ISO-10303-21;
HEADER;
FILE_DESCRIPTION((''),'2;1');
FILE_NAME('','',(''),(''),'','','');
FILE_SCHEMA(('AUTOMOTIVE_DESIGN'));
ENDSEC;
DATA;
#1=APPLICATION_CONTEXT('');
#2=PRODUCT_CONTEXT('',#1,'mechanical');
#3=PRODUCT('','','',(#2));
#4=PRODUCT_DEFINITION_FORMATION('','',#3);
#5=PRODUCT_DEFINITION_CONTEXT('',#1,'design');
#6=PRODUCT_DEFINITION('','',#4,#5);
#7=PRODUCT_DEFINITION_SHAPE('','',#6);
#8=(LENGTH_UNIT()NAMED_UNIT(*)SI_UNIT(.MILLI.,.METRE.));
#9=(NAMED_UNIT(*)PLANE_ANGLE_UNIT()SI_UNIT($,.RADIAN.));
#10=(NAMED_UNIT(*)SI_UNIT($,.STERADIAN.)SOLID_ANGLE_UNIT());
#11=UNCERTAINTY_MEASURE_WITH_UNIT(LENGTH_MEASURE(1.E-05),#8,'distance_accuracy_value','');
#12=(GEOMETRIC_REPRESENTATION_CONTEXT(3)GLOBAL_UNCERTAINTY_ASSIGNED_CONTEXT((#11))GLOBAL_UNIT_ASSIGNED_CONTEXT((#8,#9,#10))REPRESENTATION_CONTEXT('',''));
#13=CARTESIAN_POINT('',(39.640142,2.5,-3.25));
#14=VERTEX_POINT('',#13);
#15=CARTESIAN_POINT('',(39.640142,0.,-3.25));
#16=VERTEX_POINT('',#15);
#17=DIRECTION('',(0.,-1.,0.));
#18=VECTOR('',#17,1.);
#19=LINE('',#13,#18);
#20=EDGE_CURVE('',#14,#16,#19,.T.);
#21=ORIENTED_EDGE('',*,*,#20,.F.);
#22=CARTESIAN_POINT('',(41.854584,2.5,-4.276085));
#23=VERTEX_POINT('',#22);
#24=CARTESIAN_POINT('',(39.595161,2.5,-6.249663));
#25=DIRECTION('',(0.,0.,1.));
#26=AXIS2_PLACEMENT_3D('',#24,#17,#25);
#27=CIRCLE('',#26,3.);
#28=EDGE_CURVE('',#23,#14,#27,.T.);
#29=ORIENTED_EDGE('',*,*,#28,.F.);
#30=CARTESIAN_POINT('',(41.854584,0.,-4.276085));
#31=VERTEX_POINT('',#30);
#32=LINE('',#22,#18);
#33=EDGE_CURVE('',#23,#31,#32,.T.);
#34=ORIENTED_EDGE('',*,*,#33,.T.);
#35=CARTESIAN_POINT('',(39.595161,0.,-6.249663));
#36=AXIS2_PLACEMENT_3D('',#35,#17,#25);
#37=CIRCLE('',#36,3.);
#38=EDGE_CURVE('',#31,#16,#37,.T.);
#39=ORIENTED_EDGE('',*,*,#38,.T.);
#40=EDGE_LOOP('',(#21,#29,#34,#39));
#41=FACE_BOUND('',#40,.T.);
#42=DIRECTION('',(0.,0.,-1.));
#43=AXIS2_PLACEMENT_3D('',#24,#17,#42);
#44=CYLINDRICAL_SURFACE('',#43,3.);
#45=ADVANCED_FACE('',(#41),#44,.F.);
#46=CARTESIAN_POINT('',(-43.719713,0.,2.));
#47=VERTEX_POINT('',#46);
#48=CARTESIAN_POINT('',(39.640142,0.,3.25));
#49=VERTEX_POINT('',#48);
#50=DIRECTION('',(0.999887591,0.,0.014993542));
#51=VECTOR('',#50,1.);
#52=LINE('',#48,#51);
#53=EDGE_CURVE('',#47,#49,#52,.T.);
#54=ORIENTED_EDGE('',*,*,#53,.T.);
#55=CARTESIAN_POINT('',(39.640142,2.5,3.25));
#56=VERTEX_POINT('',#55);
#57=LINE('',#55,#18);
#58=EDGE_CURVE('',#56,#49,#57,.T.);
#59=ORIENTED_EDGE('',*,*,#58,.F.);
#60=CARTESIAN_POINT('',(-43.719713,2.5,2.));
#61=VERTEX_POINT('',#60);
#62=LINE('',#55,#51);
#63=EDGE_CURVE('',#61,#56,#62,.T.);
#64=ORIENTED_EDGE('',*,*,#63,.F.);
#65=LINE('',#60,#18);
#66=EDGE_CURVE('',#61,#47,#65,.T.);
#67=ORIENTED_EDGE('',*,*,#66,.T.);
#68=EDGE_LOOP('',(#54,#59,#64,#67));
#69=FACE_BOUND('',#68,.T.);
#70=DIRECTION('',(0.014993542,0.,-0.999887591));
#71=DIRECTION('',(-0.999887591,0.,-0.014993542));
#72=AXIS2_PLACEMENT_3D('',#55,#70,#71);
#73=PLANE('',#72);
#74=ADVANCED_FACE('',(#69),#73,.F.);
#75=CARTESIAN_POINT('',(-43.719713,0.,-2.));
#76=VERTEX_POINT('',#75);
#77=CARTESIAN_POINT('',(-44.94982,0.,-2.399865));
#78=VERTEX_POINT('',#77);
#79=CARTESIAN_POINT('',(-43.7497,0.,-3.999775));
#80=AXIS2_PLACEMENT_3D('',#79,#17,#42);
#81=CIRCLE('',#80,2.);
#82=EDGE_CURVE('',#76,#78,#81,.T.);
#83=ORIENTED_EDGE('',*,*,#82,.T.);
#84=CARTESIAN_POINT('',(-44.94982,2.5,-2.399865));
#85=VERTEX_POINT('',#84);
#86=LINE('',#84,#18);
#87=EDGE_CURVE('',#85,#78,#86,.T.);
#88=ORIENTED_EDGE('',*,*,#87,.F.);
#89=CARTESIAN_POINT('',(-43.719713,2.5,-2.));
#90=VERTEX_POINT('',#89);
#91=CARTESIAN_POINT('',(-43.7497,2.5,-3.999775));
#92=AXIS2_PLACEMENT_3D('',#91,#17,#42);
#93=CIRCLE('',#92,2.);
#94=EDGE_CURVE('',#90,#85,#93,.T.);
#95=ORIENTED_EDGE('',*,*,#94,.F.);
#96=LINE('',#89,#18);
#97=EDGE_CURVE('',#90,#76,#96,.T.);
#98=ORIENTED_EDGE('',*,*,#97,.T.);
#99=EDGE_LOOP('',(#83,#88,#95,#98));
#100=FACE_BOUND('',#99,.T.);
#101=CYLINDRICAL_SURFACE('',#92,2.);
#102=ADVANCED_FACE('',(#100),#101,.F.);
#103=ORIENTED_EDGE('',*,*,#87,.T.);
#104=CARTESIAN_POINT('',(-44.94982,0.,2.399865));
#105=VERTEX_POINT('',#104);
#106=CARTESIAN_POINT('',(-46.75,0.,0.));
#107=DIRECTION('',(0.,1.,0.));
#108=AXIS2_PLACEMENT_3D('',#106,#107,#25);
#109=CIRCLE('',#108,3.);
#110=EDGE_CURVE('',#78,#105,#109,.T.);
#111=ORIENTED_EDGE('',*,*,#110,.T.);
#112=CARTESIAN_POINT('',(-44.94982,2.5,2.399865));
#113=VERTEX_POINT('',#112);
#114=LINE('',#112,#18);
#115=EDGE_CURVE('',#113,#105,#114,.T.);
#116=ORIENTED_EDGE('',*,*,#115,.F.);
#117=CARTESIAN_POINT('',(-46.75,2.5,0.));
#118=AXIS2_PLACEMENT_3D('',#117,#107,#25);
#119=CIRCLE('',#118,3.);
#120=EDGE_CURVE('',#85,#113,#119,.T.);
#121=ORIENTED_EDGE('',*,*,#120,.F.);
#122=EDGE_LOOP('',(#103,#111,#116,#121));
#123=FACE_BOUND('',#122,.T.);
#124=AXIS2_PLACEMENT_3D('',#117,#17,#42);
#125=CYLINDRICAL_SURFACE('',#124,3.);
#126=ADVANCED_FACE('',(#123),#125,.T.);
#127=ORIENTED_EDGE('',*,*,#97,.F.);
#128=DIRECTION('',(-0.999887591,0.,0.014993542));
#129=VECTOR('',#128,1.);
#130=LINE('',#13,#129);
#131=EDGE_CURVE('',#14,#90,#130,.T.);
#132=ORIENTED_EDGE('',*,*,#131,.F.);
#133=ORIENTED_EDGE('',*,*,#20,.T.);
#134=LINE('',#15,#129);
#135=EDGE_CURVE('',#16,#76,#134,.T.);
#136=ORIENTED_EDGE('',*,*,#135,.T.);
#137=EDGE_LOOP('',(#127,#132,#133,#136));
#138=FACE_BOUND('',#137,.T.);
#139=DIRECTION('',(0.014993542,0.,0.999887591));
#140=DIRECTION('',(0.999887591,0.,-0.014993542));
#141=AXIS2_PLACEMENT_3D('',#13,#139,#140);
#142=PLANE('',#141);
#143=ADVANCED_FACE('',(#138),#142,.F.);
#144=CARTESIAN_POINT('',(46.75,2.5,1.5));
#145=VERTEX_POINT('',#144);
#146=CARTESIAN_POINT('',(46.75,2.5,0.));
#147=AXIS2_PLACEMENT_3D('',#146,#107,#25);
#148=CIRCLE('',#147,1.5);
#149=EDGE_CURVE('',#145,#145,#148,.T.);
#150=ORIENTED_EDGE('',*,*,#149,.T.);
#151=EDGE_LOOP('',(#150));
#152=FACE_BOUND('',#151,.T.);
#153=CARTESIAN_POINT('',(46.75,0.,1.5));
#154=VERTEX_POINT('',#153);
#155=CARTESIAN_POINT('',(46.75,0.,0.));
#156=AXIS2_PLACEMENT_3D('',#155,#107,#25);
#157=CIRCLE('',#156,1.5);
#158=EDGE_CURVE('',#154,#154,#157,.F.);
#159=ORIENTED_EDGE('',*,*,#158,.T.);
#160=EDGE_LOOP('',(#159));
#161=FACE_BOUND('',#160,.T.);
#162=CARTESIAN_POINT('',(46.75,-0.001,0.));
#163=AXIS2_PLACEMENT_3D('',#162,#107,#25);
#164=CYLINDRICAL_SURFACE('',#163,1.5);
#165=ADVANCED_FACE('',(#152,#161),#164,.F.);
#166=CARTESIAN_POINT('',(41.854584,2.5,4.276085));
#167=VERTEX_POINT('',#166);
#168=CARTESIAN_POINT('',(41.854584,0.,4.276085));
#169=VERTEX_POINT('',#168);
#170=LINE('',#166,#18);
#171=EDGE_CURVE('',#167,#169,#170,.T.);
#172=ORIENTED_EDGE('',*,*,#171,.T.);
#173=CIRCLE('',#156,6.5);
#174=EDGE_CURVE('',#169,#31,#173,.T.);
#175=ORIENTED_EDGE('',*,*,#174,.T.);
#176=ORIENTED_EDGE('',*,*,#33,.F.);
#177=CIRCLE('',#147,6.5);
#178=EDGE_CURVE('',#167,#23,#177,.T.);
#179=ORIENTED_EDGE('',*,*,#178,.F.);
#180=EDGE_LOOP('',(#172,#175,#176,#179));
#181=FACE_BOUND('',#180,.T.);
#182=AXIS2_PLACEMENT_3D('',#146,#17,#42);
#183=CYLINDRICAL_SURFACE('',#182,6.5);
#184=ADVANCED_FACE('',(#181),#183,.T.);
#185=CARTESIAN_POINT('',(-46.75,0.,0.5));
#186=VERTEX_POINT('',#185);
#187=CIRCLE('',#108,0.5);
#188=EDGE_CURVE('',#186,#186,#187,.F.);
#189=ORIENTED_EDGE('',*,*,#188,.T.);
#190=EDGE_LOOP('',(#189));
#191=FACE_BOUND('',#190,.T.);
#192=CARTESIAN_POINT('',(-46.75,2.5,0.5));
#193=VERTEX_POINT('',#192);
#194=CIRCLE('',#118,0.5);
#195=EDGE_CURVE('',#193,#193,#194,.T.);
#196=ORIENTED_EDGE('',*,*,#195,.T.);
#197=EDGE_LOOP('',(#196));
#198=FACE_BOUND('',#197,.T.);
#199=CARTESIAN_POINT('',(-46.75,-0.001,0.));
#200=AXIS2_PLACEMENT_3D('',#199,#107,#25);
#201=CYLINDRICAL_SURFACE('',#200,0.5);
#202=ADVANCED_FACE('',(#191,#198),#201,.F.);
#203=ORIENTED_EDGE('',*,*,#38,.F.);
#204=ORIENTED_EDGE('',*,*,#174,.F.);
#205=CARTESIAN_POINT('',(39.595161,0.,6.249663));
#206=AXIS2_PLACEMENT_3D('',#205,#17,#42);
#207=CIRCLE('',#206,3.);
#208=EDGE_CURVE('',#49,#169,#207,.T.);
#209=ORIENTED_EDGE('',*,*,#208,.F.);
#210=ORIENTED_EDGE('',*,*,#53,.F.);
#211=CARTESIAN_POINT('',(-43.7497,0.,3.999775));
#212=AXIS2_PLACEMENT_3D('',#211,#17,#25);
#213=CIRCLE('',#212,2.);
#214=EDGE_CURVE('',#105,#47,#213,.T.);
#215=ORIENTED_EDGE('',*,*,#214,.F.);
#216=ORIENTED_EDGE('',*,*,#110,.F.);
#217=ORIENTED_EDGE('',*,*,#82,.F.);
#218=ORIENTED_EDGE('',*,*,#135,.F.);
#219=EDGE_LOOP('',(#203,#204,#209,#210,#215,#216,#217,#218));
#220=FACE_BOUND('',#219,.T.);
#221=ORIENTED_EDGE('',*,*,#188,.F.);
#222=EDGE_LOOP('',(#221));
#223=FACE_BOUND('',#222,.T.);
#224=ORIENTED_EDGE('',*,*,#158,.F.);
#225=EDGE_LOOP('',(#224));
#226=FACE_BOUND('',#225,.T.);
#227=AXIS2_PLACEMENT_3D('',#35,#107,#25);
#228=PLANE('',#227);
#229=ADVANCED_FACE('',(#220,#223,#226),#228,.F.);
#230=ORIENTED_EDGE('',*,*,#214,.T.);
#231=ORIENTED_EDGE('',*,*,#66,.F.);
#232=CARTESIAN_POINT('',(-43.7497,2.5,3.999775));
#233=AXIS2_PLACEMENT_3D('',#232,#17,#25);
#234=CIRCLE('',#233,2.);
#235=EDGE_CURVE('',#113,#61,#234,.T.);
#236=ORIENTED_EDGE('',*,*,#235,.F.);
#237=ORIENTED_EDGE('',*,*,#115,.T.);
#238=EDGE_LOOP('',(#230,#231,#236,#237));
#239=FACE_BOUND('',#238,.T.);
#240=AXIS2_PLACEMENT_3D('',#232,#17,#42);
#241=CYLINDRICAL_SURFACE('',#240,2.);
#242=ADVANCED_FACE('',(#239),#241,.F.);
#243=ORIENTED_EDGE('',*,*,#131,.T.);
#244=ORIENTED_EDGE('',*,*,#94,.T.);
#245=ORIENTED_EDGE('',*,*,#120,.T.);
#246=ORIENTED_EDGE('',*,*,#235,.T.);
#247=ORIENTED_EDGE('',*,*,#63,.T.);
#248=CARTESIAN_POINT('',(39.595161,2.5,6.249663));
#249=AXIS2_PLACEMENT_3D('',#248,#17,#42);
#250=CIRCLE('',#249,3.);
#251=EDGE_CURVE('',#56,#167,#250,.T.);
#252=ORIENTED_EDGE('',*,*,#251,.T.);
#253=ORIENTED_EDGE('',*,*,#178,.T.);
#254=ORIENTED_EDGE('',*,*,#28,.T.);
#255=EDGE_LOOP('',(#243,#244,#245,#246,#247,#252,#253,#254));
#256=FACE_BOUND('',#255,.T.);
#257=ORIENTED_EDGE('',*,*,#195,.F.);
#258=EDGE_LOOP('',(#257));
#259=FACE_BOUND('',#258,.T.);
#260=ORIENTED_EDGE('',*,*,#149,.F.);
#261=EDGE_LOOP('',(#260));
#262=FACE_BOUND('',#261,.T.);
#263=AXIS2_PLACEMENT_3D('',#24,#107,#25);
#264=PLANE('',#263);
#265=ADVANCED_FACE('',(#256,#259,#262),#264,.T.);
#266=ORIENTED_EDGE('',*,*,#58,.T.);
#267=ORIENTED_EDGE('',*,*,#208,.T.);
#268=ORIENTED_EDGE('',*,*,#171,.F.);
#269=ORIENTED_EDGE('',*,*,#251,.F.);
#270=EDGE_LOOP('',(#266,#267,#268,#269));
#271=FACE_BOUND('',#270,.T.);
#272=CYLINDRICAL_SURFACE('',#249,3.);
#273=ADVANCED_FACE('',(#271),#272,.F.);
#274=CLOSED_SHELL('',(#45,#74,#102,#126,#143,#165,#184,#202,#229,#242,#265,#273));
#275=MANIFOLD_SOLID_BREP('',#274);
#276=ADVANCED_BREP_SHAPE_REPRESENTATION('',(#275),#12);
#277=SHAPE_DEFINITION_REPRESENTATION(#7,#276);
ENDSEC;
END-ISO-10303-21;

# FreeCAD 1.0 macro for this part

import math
import FreeCAD as App
import Part
import Sketcher

V = App.Vector

doc = App.newDocument("Part")
body = doc.addObject("PartDesign::Body", "Body")

# Sketch on XZ plane
sketch1 = doc.addObject("Sketcher::SketchObject", "Sketch")
body.addObject(sketch1)
sketch1.AttachmentSupport = (doc.XZ_Plane, [""])
sketch1.MapMode = "FlatFace"
sketch1.addGeometry(Part.LineSegment(V(39.6, -3.2, 0), V(-43.7, -2, 0)), False)
sketch1.addGeometry(Part.ArcOfCircle(Part.Circle(V(-43.7, -4, 0), V(0, 0, 1), 2), math.radians(89), math.radians(127)), False)
sketch1.addGeometry(Part.ArcOfCircle(Part.Circle(V(-46.8, 0, 0), V(0, 0, 1), 3), math.radians(53), math.radians(307)), False)
sketch1.addGeometry(Part.ArcOfCircle(Part.Circle(V(-43.7, 4, 0), V(0, 0, 1), 2), math.radians(-127), math.radians(-89)), False)
sketch1.addGeometry(Part.LineSegment(V(-43.7, 2, 0), V(39.6, 3.2, 0)), False)
sketch1.addGeometry(Part.ArcOfCircle(Part.Circle(V(39.6, 6.2, 0), V(0, 0, 1), 3), math.radians(-89), math.radians(-41)), False)
sketch1.addGeometry(Part.ArcOfCircle(Part.Circle(V(46.8, 0, 0), V(0, 0, 1), 6.5), math.radians(-139), math.radians(139)), False)
sketch1.addGeometry(Part.ArcOfCircle(Part.Circle(V(39.6, -6.2, 0), V(0, 0, 1), 3), math.radians(41), math.radians(89)), False)
sketch1.addConstraint(Sketcher.Constraint("Tangent", 0, 2, 1, 1))
sketch1.addConstraint(Sketcher.Constraint("Tangent", 1, 2, 2, 2))
sketch1.addConstraint(Sketcher.Constraint("Tangent", 2, 1, 3, 1))
sketch1.addConstraint(Sketcher.Constraint("Tangent", 3, 2, 4, 1))
sketch1.addConstraint(Sketcher.Constraint("Tangent", 4, 2, 5, 1))
sketch1.addConstraint(Sketcher.Constraint("Tangent", 5, 2, 6, 2))
sketch1.addConstraint(Sketcher.Constraint("Tangent", 6, 1, 7, 1))
sketch1.addConstraint(Sketcher.Constraint("Tangent", 7, 2, 0, 1))
sketch1.addConstraint(Sketcher.Constraint("Equal", 1, 3))
sketch1.addConstraint(Sketcher.Constraint("Equal", 2, 5))
sketch1.addConstraint(Sketcher.Constraint("Equal", 5, 7))
sketch1.addConstraint(Sketcher.Constraint("Symmetric", 2, 3, 6, 3, -1, 1))
sketch1.addConstraint(Sketcher.Constraint("Symmetric", 1, 3, 3, 3, -1))
sketch1.addConstraint(Sketcher.Constraint("Vertical", 5, 3, 7, 3))
sketch1.addConstraint(Sketcher.Constraint("Radius", 1, 2.0))
sketch1.addConstraint(Sketcher.Constraint("Radius", 2, 3.0))
sketch1.addConstraint(Sketcher.Constraint("Radius", 6, 6.5))
sketch1.addConstraint(Sketcher.Constraint("DistanceY", 0, 2, -1, 1, 2.0))
sketch1.addConstraint(Sketcher.Constraint("DistanceX", 2, 3, 6, 3, 93.5))
sketch1.addConstraint(Sketcher.Constraint("DistanceY", 7, 2, 4, 2, 6.5))
pad1 = doc.addObject("PartDesign::Pad", "Pad")
body.addObject(pad1)
pad1.Profile = sketch1
pad1.Length = 2.5
pad1.Reversed = True

# Sketch on XZ plane
sketch2 = doc.addObject("Sketcher::SketchObject", "Sketch001")
body.addObject(sketch2)
sketch2.AttachmentSupport = (doc.XZ_Plane, [""])
sketch2.MapMode = "FlatFace"
sketch2.AttachmentOffset = App.Placement(V(0, 0, -2.5), App.Rotation())
sketch2.addGeometry(Part.Circle(V(-46.8, 0, 0), V(0, 0, 1), 0.5), False)
sketch2.addConstraint(Sketcher.Constraint("PointOnObject", 0, 3, -1))
sketch2.addConstraint(Sketcher.Constraint("Diameter", 0, 1.0))
sketch2.addConstraint(Sketcher.Constraint("DistanceX", 0, 3, -1, 1, 46.75))
pocket1 = doc.addObject("PartDesign::Pocket", "Pocket")
body.addObject(pocket1)
pocket1.Profile = sketch2
pocket1.Type = "UpToFirst"
pocket1.Reversed = True

# Sketch on XZ plane
sketch3 = doc.addObject("Sketcher::SketchObject", "Sketch002")
body.addObject(sketch3)
sketch3.AttachmentSupport = (doc.XZ_Plane, [""])
sketch3.MapMode = "FlatFace"
sketch3.AttachmentOffset = App.Placement(V(0, 0, -2.5), App.Rotation())
sketch3.addGeometry(Part.Circle(V(46.8, 0, 0), V(0, 0, 1), 1.5), False)
sketch3.addConstraint(Sketcher.Constraint("PointOnObject", 0, 3, -1))
sketch3.addConstraint(Sketcher.Constraint("Diameter", 0, 3.0))
sketch3.addConstraint(Sketcher.Constraint("DistanceX", -1, 1, 0, 3, 46.75))
pocket2 = doc.addObject("PartDesign::Pocket", "Pocket001")
body.addObject(pocket2)
pocket2.Profile = sketch3
pocket2.Type = "UpToFirst"
pocket2.Reversed = True

doc.recompute()
